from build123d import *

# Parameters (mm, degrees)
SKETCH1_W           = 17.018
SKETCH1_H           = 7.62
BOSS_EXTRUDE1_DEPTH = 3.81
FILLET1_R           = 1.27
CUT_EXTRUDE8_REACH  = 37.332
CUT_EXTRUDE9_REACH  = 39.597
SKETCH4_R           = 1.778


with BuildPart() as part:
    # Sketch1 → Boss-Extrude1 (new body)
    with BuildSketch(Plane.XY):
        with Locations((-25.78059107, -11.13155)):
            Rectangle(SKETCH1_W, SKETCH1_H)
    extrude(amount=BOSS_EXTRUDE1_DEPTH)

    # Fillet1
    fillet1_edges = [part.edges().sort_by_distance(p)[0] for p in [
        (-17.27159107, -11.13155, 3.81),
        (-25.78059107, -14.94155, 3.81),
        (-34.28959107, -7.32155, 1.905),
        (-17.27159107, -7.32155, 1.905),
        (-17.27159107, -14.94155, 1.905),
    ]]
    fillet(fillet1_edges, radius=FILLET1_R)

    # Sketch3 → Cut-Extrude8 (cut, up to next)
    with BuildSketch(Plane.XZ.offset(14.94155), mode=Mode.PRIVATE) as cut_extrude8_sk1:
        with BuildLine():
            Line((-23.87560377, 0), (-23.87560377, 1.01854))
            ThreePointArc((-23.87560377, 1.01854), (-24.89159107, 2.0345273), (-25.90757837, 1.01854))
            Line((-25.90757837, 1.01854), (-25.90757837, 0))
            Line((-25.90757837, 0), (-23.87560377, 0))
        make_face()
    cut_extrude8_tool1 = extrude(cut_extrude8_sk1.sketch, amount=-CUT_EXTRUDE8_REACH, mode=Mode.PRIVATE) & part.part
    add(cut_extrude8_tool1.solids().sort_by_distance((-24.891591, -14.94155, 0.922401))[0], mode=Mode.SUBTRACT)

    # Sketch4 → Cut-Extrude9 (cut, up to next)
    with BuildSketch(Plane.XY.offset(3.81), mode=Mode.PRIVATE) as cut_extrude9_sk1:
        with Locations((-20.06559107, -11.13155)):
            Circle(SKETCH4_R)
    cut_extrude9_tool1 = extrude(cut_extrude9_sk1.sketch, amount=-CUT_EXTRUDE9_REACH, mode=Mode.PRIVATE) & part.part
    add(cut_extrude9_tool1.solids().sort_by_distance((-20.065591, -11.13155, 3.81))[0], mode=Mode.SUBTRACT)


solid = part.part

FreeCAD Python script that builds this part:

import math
import FreeCAD as App
import Part
import Sketcher
Q = App.Units.Quantity


def edges_at(feature, points):
    """Names of the edges that pass closest to the given points."""
    edges = feature.Shape.Edges
    near = lambda p: min(range(len(edges)), key=lambda i: edges[i].distToShape(Part.Vertex(*p))[0])
    return sorted({f"Edge{near(p) + 1}" for p in points})


def add_polygon(sketch, points):
    """Adds a closed chain of lines whose ends are joined by coincident constraints."""
    first, n = sketch.GeometryCount, len(points)
    for a, b in zip(points, points[1:] + points[:1]):
        sketch.addGeometry(Part.LineSegment(App.Vector(*a, 0), App.Vector(*b, 0)), False)
    for i in range(n):
        sketch.addConstraint(Sketcher.Constraint("Coincident", first + i, 2, first + (i + 1) % n, 1))

doc = App.newDocument("Part")
body = doc.addObject("PartDesign::Body", "Body")

# Sketch on XY plane
sketch1 = body.newObject("Sketcher::SketchObject", "Sketch")
sketch1.AttachmentSupport = (doc.getObject("XY_Plane"), [""])
sketch1.MapMode = "FlatFace"
add_polygon(sketch1, [(-34.289591, -7.32155), (-34.289591, -14.94155), (-17.271591, -14.94155), (-17.271591, -7.32155)])  # lines 0-3
sketch1.addConstraint(Sketcher.Constraint("Vertical", 0))
sketch1.addConstraint(Sketcher.Constraint("Horizontal", 1))
sketch1.addConstraint(Sketcher.Constraint("Vertical", 2))
sketch1.addConstraint(Sketcher.Constraint("Horizontal", 3))
sketch1.addConstraint(Sketcher.Constraint("DistanceY", 0, 2, 0, 1, Q("0.3 in")))
sketch1.addConstraint(Sketcher.Constraint("DistanceX", 1, 1, 1, 2, Q("0.67 in")))
sketch1.addConstraint(Sketcher.Constraint("DistanceX", 0, 2, -1, 1, Q("34.289591 mm")))
sketch1.addConstraint(Sketcher.Constraint("DistanceY", 0, 2, -1, 1, Q("14.94155 mm")))
pad1 = body.newObject("PartDesign::Pad", "Pad")
pad1.Profile = sketch1
pad1.Length = Q("0.15 in")
doc.recompute()

fillet = body.newObject("PartDesign::Fillet", "Fillet")
fillet.Base = (pad1, edges_at(pad1, [
    (-17.272, -11.132, 3.81),
    (-25.781, -14.942, 3.81),
    (-34.29, -7.322, 1.905),
    (-17.272, -7.322, 1.905),
    (-17.272, -14.942, 1.905),
]))
fillet.Radius = Q("0.05 in")

# Sketch on XZ plane
sketch2 = body.newObject("Sketcher::SketchObject", "Sketch001")
sketch2.AttachmentSupport = (doc.getObject("XZ_Plane"), [""])
sketch2.MapMode = "FlatFace"
sketch2.AttachmentOffset = App.Placement(App.Vector(0, 0, 14.94155), App.Rotation())
sketch2.addGeometry(Part.LineSegment(App.Vector(-23.875604, 0, 0), App.Vector(-23.875604, 1.01854, 0)), False)
sketch2.addGeometry(Part.ArcOfCircle(Part.Circle(App.Vector(-24.891591, 1.01854, 0), App.Vector(0, 0, 1), 1.015987), math.radians(0), math.radians(180)), False)
sketch2.addGeometry(Part.LineSegment(App.Vector(-25.907578, 1.01854, 0), App.Vector(-25.907578, 0, 0)), False)
sketch2.addGeometry(Part.LineSegment(App.Vector(-25.907578, 0, 0), App.Vector(-23.875604, 0, 0)), False)
sketch2.addConstraint(Sketcher.Constraint("Tangent", 0, 2, 1, 1))
sketch2.addConstraint(Sketcher.Constraint("Tangent", 1, 2, 2, 1))
sketch2.addConstraint(Sketcher.Constraint("Coincident", 2, 2, 3, 1))
sketch2.addConstraint(Sketcher.Constraint("Coincident", 3, 2, 0, 1))
sketch2.addConstraint(Sketcher.Constraint("Vertical", 0))
sketch2.addConstraint(Sketcher.Constraint("Vertical", 2))
sketch2.addConstraint(Sketcher.Constraint("Horizontal", 3))
sketch2.addConstraint(Sketcher.Constraint("PointOnObject", 2, 2, -1))
sketch2.addConstraint(Sketcher.Constraint("DistanceY", 0, 1, 0, 2, Q("0.0401 in")))
sketch2.addConstraint(Sketcher.Constraint("Radius", 1, Q("1.015987 mm")))
sketch2.addConstraint(Sketcher.Constraint("DistanceX", 1, 3, -1, 1, Q("24.891591 mm")))
pocket1 = body.newObject("PartDesign::Pocket", "Pocket")
pocket1.Profile = sketch2
pocket1.Type = "UpToFirst"

# Sketch on XY plane
sketch3 = body.newObject("Sketcher::SketchObject", "Sketch002")
sketch3.AttachmentSupport = (doc.getObject("XY_Plane"), [""])
sketch3.MapMode = "FlatFace"
sketch3.AttachmentOffset = App.Placement(App.Vector(0, 0, 0.15 * 25.4), App.Rotation())
sketch3.addGeometry(Part.Circle(App.Vector(-20.065591, -11.13155, 0), App.Vector(0, 0, 1), 1.778), False)
sketch3.addConstraint(Sketcher.Constraint("Diameter", 0, Q("0.14 in")))
sketch3.addConstraint(Sketcher.Constraint("DistanceX", 0, 3, -1, 1, Q("20.065591 mm")))
sketch3.addConstraint(Sketcher.Constraint("DistanceY", 0, 3, -1, 1, Q("11.13155 mm")))
pocket2 = body.newObject("PartDesign::Pocket", "Pocket001")
pocket2.Profile = sketch3
pocket2.Type = "UpToFirst"

doc.recompute()
